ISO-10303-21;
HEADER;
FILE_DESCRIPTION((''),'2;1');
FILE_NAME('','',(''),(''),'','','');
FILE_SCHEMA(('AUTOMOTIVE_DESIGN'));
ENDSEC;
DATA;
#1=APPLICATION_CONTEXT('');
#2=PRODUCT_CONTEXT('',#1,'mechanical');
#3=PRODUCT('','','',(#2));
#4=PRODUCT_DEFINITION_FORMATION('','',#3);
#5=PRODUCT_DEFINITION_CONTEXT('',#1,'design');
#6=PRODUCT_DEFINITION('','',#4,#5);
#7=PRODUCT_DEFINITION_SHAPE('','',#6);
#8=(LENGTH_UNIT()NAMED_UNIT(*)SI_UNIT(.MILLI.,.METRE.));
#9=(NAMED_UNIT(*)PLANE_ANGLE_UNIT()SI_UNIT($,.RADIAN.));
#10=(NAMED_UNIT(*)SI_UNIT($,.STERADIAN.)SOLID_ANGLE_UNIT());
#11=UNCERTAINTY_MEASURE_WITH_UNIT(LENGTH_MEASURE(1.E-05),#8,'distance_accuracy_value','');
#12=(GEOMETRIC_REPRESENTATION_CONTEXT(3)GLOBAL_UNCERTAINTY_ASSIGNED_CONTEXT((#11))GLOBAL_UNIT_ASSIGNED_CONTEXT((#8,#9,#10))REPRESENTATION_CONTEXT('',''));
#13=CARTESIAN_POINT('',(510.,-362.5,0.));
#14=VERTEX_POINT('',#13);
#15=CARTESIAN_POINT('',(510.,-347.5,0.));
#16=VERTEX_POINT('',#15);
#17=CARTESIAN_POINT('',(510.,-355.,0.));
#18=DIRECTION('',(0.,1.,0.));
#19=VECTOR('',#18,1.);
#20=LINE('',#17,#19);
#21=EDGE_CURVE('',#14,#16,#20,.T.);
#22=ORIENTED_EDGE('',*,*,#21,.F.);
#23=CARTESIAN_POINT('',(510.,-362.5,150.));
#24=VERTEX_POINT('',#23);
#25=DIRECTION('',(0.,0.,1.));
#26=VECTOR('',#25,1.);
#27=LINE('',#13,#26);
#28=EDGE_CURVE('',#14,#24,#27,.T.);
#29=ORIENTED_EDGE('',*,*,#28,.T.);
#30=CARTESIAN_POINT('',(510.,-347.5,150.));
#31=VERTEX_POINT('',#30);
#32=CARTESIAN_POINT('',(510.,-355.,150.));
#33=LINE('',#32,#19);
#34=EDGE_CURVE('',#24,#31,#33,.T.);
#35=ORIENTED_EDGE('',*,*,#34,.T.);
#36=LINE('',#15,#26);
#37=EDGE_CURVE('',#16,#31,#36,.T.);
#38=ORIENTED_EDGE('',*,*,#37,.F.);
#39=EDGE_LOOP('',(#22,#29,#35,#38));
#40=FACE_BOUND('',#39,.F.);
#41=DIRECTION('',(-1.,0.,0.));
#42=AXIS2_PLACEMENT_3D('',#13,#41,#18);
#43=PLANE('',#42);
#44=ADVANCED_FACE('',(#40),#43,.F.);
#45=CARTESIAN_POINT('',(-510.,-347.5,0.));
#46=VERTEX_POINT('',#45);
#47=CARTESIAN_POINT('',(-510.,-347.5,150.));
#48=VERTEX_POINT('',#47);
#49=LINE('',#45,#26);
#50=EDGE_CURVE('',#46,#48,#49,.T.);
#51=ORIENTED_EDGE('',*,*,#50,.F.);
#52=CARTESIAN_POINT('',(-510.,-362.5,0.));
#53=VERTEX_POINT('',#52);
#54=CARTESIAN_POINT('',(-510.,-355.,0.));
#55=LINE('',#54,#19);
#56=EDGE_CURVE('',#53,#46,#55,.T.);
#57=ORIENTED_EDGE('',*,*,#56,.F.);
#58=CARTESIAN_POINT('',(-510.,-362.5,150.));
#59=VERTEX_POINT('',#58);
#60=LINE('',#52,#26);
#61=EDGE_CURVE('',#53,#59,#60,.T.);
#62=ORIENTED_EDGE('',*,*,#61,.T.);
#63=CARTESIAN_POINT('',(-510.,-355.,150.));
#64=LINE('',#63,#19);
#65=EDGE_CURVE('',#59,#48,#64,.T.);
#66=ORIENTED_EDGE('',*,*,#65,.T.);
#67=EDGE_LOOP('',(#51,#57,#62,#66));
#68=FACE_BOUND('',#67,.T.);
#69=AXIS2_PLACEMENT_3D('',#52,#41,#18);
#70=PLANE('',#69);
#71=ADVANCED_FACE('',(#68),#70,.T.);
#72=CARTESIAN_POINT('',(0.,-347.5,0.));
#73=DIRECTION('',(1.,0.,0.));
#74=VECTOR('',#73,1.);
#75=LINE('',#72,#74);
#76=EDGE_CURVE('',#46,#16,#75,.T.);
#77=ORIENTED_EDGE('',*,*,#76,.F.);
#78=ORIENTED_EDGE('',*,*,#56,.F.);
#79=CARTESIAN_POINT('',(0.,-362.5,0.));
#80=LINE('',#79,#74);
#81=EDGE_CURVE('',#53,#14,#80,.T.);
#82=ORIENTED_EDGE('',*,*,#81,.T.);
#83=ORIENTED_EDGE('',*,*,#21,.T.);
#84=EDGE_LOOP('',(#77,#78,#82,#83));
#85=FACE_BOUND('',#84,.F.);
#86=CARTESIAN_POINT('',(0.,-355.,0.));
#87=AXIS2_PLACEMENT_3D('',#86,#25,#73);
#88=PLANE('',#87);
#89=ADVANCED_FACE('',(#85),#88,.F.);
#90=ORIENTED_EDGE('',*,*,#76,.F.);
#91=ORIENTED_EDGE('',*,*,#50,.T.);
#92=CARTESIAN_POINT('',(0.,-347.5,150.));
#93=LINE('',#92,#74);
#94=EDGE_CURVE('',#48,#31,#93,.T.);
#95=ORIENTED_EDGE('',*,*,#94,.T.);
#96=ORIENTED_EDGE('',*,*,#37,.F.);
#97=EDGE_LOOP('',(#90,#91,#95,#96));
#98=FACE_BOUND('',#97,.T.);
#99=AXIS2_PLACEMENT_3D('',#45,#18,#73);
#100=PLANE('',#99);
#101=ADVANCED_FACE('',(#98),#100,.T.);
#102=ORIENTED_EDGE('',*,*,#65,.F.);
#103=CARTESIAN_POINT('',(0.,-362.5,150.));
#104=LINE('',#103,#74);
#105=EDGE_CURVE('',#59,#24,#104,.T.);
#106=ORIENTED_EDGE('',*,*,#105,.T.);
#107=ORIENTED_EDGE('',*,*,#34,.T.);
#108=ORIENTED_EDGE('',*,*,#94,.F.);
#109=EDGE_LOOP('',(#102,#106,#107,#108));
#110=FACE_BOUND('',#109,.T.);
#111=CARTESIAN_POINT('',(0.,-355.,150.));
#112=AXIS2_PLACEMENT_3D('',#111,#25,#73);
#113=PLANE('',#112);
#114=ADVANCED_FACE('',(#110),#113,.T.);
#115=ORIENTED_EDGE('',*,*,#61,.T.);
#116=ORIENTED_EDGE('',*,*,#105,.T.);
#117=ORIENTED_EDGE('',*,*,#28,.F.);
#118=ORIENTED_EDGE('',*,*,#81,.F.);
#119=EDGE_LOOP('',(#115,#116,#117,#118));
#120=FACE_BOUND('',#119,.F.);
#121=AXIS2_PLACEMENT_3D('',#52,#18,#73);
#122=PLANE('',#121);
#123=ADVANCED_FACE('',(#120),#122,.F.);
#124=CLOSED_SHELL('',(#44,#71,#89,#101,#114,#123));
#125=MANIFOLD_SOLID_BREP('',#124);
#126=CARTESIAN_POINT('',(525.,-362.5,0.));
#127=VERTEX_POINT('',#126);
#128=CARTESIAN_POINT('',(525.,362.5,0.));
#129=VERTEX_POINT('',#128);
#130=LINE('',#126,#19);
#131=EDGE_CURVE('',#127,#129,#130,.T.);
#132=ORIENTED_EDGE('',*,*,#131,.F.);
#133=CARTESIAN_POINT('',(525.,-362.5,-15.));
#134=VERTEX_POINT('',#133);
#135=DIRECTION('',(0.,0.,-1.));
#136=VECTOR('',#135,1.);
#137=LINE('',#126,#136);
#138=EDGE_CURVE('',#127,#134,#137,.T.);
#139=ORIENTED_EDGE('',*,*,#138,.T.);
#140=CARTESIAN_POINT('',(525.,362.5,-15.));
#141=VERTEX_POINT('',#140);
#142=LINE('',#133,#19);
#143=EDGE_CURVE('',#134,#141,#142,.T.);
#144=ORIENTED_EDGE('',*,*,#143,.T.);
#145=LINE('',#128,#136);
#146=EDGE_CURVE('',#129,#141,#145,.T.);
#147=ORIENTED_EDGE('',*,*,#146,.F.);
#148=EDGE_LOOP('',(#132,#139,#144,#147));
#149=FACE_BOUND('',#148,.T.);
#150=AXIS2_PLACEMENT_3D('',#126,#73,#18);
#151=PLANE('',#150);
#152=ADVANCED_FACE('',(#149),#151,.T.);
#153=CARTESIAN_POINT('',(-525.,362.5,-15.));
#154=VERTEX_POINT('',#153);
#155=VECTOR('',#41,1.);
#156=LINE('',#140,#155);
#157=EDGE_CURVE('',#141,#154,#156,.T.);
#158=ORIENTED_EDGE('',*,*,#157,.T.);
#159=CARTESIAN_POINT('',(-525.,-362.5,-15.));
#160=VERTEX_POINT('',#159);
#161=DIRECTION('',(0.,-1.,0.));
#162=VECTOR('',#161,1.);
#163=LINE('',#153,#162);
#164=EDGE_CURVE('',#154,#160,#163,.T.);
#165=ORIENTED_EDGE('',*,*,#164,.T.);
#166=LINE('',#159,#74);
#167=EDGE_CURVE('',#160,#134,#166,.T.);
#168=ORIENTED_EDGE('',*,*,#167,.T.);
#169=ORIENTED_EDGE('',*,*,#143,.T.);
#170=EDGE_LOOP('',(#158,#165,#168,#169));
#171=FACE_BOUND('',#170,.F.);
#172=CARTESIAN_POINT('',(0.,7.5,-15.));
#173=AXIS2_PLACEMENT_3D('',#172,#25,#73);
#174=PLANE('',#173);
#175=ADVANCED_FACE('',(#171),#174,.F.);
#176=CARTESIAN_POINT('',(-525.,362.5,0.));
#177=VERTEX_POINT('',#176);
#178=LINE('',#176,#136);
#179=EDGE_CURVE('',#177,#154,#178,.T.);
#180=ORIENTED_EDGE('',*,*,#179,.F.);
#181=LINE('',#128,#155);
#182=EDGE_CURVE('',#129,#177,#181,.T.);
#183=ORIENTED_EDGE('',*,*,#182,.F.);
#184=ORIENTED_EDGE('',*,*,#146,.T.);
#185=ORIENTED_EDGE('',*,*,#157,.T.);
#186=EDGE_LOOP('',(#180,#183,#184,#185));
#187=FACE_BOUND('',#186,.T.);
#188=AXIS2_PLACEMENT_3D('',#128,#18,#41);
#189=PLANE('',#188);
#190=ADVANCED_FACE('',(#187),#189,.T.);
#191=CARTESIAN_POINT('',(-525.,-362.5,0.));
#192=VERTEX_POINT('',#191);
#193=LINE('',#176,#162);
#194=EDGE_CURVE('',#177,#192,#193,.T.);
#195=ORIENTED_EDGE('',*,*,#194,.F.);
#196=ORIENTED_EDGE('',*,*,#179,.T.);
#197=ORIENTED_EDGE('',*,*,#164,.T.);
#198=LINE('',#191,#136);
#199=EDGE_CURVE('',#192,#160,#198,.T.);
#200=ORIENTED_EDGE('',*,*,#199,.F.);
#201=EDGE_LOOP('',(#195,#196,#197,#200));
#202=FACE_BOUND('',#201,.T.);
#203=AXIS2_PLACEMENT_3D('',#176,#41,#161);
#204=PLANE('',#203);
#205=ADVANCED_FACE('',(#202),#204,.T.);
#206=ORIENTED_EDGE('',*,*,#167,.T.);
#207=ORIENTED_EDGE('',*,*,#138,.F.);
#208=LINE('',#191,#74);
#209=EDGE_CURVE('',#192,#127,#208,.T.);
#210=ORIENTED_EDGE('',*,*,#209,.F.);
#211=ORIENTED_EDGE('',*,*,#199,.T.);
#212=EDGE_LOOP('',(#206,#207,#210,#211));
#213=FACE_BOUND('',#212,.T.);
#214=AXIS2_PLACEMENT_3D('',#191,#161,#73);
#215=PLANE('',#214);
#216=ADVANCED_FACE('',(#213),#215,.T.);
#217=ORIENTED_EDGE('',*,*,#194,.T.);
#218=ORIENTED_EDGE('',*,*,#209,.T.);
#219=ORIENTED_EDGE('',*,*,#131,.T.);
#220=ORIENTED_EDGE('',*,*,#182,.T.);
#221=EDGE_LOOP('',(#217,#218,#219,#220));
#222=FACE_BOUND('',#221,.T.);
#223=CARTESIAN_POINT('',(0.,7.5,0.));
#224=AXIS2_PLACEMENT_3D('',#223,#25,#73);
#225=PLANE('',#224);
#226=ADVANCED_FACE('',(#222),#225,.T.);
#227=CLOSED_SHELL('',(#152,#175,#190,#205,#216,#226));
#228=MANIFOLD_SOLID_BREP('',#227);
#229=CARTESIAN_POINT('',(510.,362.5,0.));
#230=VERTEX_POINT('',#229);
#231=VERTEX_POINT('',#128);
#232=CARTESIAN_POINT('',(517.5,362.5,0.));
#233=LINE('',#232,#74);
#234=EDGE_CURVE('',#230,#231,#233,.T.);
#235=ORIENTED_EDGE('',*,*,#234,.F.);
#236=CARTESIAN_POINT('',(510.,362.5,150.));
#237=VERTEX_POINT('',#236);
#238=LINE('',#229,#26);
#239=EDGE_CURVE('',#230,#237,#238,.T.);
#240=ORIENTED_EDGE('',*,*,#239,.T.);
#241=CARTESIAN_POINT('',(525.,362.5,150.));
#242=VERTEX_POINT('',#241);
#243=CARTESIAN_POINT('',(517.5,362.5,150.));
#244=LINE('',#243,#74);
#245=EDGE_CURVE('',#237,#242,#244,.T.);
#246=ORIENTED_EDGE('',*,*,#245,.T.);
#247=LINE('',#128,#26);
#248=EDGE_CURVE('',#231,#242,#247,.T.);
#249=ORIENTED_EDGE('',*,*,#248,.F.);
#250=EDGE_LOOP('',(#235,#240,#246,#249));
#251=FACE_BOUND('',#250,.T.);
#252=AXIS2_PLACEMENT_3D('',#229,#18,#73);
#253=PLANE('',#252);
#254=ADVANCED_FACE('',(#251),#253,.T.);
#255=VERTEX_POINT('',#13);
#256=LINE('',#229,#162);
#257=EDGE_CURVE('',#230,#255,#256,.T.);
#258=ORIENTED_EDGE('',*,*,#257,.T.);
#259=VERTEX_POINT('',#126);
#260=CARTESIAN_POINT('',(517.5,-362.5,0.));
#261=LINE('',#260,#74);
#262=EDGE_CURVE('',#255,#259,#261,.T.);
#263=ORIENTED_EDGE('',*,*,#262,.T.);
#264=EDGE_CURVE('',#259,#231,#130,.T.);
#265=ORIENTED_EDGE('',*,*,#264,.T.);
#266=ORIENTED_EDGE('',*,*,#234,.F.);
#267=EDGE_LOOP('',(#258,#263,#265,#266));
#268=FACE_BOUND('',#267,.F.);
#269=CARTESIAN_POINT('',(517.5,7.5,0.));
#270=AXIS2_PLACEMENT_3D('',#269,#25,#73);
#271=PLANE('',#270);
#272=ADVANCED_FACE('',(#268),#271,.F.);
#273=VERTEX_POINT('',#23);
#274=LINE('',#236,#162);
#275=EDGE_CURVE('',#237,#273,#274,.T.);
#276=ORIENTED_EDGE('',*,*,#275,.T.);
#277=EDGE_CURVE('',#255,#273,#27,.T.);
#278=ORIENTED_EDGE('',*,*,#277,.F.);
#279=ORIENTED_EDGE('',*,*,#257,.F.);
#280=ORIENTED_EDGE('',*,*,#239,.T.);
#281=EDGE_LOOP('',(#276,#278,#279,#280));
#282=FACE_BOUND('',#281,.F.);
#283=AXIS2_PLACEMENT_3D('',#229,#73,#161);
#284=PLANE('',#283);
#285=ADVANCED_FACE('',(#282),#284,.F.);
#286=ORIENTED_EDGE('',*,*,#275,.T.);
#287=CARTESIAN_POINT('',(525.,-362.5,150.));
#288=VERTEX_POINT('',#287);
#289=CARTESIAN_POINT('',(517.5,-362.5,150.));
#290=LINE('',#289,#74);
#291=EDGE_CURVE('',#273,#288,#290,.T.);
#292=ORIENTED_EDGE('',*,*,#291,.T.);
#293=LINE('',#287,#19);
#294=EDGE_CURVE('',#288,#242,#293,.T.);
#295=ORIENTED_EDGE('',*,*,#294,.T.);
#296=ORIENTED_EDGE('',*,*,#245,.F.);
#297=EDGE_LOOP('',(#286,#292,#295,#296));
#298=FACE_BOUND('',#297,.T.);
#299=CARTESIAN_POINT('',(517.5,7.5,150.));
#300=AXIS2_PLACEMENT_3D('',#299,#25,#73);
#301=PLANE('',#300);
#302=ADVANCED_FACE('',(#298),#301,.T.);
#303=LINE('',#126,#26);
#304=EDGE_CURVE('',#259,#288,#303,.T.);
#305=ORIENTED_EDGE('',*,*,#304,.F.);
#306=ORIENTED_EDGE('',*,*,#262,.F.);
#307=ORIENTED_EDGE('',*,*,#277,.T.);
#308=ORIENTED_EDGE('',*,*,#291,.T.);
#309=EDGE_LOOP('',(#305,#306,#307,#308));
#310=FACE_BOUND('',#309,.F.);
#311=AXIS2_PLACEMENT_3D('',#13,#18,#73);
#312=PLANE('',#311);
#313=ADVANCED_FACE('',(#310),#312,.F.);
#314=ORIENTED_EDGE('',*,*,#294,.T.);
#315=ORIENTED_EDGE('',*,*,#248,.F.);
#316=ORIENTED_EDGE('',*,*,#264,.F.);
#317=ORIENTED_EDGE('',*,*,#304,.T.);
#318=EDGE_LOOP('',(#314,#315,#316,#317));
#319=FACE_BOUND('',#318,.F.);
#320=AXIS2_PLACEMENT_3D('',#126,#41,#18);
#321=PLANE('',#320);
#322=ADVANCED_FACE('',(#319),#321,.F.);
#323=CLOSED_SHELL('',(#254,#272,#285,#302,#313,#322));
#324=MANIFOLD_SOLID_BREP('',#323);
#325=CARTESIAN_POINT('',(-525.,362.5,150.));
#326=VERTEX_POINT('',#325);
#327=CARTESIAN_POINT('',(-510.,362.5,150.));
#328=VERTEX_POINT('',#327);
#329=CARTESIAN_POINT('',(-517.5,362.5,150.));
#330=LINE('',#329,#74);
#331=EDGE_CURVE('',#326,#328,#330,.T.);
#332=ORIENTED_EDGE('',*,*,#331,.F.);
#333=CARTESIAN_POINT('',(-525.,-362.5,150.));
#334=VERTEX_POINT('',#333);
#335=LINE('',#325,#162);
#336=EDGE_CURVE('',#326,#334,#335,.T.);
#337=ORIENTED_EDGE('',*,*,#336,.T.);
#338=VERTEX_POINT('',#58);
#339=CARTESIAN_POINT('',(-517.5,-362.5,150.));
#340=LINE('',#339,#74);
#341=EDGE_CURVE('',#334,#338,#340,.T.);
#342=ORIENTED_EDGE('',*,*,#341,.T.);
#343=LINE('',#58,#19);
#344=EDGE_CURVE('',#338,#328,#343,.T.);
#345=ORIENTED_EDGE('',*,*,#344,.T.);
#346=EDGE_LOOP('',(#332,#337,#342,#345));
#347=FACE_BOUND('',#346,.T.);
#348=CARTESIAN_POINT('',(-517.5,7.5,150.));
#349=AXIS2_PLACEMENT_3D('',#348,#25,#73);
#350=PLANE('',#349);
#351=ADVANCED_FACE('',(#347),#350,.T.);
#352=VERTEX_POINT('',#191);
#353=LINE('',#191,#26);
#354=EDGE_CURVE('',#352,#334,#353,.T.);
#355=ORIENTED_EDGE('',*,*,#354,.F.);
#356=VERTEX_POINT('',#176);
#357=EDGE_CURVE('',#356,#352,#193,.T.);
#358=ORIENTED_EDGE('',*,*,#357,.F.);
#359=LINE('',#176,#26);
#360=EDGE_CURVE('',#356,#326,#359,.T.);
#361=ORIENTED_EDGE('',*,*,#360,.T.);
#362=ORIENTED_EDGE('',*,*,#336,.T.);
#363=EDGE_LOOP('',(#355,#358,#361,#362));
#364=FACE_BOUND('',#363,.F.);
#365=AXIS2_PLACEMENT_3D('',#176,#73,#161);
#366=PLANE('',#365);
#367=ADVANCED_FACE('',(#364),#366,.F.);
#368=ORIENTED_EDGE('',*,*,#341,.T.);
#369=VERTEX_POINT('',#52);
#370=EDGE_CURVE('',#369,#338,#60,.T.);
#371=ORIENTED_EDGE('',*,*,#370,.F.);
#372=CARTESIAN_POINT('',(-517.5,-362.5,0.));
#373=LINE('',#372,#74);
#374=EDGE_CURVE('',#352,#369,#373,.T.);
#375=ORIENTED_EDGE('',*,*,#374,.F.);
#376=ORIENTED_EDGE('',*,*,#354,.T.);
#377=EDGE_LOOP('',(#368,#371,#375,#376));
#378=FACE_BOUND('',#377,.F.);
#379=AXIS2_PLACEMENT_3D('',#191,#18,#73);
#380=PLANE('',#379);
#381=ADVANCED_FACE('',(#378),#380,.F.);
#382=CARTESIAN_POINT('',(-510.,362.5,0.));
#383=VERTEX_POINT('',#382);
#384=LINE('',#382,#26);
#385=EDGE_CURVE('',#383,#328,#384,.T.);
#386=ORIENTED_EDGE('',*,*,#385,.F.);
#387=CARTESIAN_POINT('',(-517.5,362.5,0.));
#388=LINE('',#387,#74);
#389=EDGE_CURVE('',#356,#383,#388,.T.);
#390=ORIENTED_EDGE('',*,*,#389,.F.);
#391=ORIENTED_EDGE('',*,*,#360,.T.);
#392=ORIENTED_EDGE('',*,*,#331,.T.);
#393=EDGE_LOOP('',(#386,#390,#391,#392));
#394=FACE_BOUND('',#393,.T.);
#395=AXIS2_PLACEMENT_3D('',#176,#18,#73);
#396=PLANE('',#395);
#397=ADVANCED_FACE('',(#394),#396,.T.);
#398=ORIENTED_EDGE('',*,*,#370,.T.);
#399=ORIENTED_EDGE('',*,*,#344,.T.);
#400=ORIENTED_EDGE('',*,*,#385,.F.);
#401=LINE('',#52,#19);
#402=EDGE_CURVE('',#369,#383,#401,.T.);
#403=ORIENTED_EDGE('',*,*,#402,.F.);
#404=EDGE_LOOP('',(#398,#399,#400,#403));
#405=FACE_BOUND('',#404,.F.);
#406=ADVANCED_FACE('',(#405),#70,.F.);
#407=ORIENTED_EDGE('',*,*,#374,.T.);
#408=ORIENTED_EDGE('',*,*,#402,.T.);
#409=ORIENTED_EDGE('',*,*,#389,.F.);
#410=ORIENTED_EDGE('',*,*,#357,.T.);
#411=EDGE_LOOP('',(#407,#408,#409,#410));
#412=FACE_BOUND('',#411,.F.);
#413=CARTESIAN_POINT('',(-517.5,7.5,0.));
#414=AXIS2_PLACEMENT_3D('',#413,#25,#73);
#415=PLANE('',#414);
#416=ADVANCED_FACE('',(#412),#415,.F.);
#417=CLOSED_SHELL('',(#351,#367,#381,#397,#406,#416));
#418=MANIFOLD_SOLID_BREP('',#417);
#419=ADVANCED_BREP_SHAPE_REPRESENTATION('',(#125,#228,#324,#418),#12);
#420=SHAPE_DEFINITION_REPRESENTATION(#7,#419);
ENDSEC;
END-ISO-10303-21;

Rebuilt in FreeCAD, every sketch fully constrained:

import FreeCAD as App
import Part
import Sketcher
Q = App.Units.Quantity


def add_polygon(sketch, points):
    """Adds a closed chain of lines whose ends are joined by coincident constraints."""
    first, n = sketch.GeometryCount, len(points)
    for a, b in zip(points, points[1:] + points[:1]):
        sketch.addGeometry(Part.LineSegment(App.Vector(*a, 0), App.Vector(*b, 0)), False)
    for i in range(n):
        sketch.addConstraint(Sketcher.Constraint("Coincident", first + i, 2, first + (i + 1) % n, 1))

doc = App.newDocument("Part")
body = doc.addObject("PartDesign::Body", "Body")

sketch1 = body.newObject("Sketcher::SketchObject", "Sketch")
sketch1.AttachmentSupport = (doc.getObject("XY_Plane"), [""])
sketch1.MapMode = "FlatFace"
add_polygon(sketch1, [(-525, 362), (-525, -362), (-510, -362), (-510, 362)])
sketch1.addConstraint([
    Sketcher.Constraint("Vertical", 0),
    Sketcher.Constraint("Horizontal", 1),
    Sketcher.Constraint("Vertical", 2),
    Sketcher.Constraint("Horizontal", 3),
    Sketcher.Constraint("DistanceX", 1, 1, 1, 2, Q("15 mm")),
    Sketcher.Constraint("DistanceY", 0, 2, 0, 1, Q("725 mm")),
    Sketcher.Constraint("DistanceX", 0, 2, -1, 1, Q("525 mm")),
    Sketcher.Constraint("DistanceY", 0, 2, -1, 1, Q("362.5 mm")),
])
pad1 = body.newObject("PartDesign::Pad", "Pad")
pad1.Profile = sketch1
pad1.Length = 150
body2 = doc.addObject("PartDesign::Body", "Body001")

sketch2 = body2.newObject("Sketcher::SketchObject", "Sketch001")
sketch2.AttachmentSupport = (doc.getObject("XY_Plane001"), [""])
sketch2.MapMode = "FlatFace"
add_polygon(sketch2, [(-510, -348), (-510, -362), (510, -362), (510, -348)])
sketch2.addConstraint([
    Sketcher.Constraint("Vertical", 0),
    Sketcher.Constraint("Horizontal", 1),
    Sketcher.Constraint("Vertical", 2),
    Sketcher.Constraint("Horizontal", 3),
    Sketcher.Constraint("DistanceX", 1, 1, 1, 2, Q("1020 mm")),
    Sketcher.Constraint("DistanceY", 0, 2, 0, 1, Q("15 mm")),
    Sketcher.Constraint("DistanceX", 0, 2, -1, 1, Q("510 mm")),
    Sketcher.Constraint("DistanceY", 0, 2, -1, 1, Q("362.5 mm")),
])
pad2 = body2.newObject("PartDesign::Pad", "Pad001")
pad2.Profile = sketch2
pad2.Length = 150
body3 = doc.addObject("PartDesign::Body", "Body002")

sketch3 = body3.newObject("Sketcher::SketchObject", "Sketch002")
sketch3.AttachmentSupport = (doc.getObject("XY_Plane002"), [""])
sketch3.MapMode = "FlatFace"
add_polygon(sketch3, [(510, 362), (510, -362), (525, -362), (525, 362)])
sketch3.addConstraint([
    Sketcher.Constraint("Vertical", 0),
    Sketcher.Constraint("Horizontal", 1),
    Sketcher.Constraint("Vertical", 2),
    Sketcher.Constraint("Horizontal", 3),
    Sketcher.Constraint("DistanceX", 1, 1, 1, 2, Q("15 mm")),
    Sketcher.Constraint("DistanceY", 0, 2, 0, 1, Q("725 mm")),
    Sketcher.Constraint("DistanceX", -1, 1, 0, 2, Q("510 mm")),
    Sketcher.Constraint("DistanceY", 0, 2, -1, 1, Q("362.5 mm")),
])
pad3 = body3.newObject("PartDesign::Pad", "Pad002")
pad3.Profile = sketch3
pad3.Length = 150
body4 = doc.addObject("PartDesign::Body", "Body003")

sketch4 = body4.newObject("Sketcher::SketchObject", "Sketch003")
sketch4.AttachmentSupport = (doc.getObject("XY_Plane003"), [""])
sketch4.MapMode = "FlatFace"
add_polygon(sketch4, [(-525, 362), (-525, -362), (525, -362), (525, 362)])
sketch4.addConstraint([
    Sketcher.Constraint("Vertical", 0),
    Sketcher.Constraint("Horizontal", 1),
    Sketcher.Constraint("Vertical", 2),
    Sketcher.Constraint("Horizontal", 3),
    Sketcher.Constraint("Symmetric", 0, 2, 2, 2, -1, 1),
    Sketcher.Constraint("DistanceX", 1, 1, 1, 2, Q("1050 mm")),
    Sketcher.Constraint("DistanceY", 0, 2, 0, 1, Q("725 mm")),
])
pad4 = body4.newObject("PartDesign::Pad", "Pad003")
pad4.Profile = sketch4
pad4.Length = 15
pad4.Reversed = True

doc.recompute()
